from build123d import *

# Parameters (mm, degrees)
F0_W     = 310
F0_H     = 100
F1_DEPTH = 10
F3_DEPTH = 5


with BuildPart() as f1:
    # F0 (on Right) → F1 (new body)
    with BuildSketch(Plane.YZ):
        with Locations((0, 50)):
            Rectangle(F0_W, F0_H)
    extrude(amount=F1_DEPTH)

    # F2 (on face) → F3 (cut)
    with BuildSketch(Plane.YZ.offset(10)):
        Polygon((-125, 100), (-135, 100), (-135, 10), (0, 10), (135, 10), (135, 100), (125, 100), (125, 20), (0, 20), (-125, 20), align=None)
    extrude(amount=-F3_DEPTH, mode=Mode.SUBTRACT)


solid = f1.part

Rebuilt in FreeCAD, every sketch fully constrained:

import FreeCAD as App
import Part
import Sketcher
from FreeCAD import Vector
Q = App.Units.Quantity

doc = App.newDocument("Part")
body = doc.addObject("PartDesign::Body", "Body")

# Sketch on YZ plane
sketch1 = body.newObject("Sketcher::SketchObject", "Sketch")
sketch1.AttachmentSupport = (doc.getObject("YZ_Plane"), [""])
sketch1.MapMode = "FlatFace"
sketch1.addGeometry(Part.LineSegment(Vector(-155, 100, 0), Vector(-155, 0, 0)), False)
sketch1.addGeometry(Part.LineSegment(Vector(-155, 0, 0), Vector(155, 0, 0)), False)
sketch1.addGeometry(Part.LineSegment(Vector(155, 0, 0), Vector(155, 100, 0)), False)
sketch1.addGeometry(Part.LineSegment(Vector(155, 100, 0), Vector(-155, 100, 0)), False)
sketch1.addConstraint(Sketcher.Constraint("Coincident", 0, 2, 1, 1))
sketch1.addConstraint(Sketcher.Constraint("Coincident", 1, 2, 2, 1))
sketch1.addConstraint(Sketcher.Constraint("Coincident", 2, 2, 3, 1))
sketch1.addConstraint(Sketcher.Constraint("Coincident", 3, 2, 0, 1))
sketch1.addConstraint(Sketcher.Constraint("Vertical", 0))
sketch1.addConstraint(Sketcher.Constraint("Horizontal", 1))
sketch1.addConstraint(Sketcher.Constraint("Vertical", 2))
sketch1.addConstraint(Sketcher.Constraint("Horizontal", 3))
sketch1.addConstraint(Sketcher.Constraint("Symmetric", 0, 2, 1, 2, -1, 1))
sketch1.addConstraint(Sketcher.Constraint("DistanceX", 1, 1, 1, 2, Q("310 mm")))
sketch1.addConstraint(Sketcher.Constraint("DistanceY", 0, 2, 0, 1, Q("100 mm")))
pad1 = body.newObject("PartDesign::Pad", "Pad")
pad1.Profile = sketch1
pad1.Length = 10

# Sketch on YZ plane
sketch2 = body.newObject("Sketcher::SketchObject", "Sketch001")
sketch2.AttachmentSupport = (doc.getObject("YZ_Plane"), [""])
sketch2.MapMode = "FlatFace"
sketch2.AttachmentOffset = App.Placement(Vector(0, 0, 10), App.Rotation())
sketch2.addGeometry(Part.LineSegment(Vector(-125, 100, 0), Vector(-135, 100, 0)), False)
sketch2.addGeometry(Part.LineSegment(Vector(-135, 100, 0), Vector(-135, 10, 0)), False)
sketch2.addGeometry(Part.LineSegment(Vector(-135, 10, 0), Vector(135, 10, 0)), False)
sketch2.addGeometry(Part.LineSegment(Vector(135, 10, 0), Vector(135, 100, 0)), False)
sketch2.addGeometry(Part.LineSegment(Vector(135, 100, 0), Vector(125, 100, 0)), False)
sketch2.addGeometry(Part.LineSegment(Vector(125, 100, 0), Vector(125, 20, 0)), False)
sketch2.addGeometry(Part.LineSegment(Vector(125, 20, 0), Vector(-125, 20, 0)), False)
sketch2.addGeometry(Part.LineSegment(Vector(-125, 20, 0), Vector(-125, 100, 0)), False)
sketch2.addConstraint(Sketcher.Constraint("Coincident", 0, 2, 1, 1))
sketch2.addConstraint(Sketcher.Constraint("Coincident", 1, 2, 2, 1))
sketch2.addConstraint(Sketcher.Constraint("Coincident", 2, 2, 3, 1))
sketch2.addConstraint(Sketcher.Constraint("Coincident", 3, 2, 4, 1))
sketch2.addConstraint(Sketcher.Constraint("Coincident", 4, 2, 5, 1))
sketch2.addConstraint(Sketcher.Constraint("Coincident", 5, 2, 6, 1))
sketch2.addConstraint(Sketcher.Constraint("Coincident", 6, 2, 7, 1))
sketch2.addConstraint(Sketcher.Constraint("Coincident", 7, 2, 0, 1))
sketch2.addConstraint(Sketcher.Constraint("Horizontal", 0))
sketch2.addConstraint(Sketcher.Constraint("Vertical", 1))
sketch2.addConstraint(Sketcher.Constraint("Horizontal", 2))
sketch2.addConstraint(Sketcher.Constraint("Vertical", 3))
sketch2.addConstraint(Sketcher.Constraint("Horizontal", 4))
sketch2.addConstraint(Sketcher.Constraint("Vertical", 5))
sketch2.addConstraint(Sketcher.Constraint("Horizontal", 6))
sketch2.addConstraint(Sketcher.Constraint("Vertical", 7))
sketch2.addConstraint(Sketcher.Constraint("Symmetric", 0, 2, 3, 2, -2))
sketch2.addConstraint(Sketcher.Constraint("Equal", 0, 4))
sketch2.addConstraint(Sketcher.Constraint("DistanceX", 0, 2, 0, 1, Q("10 mm")))
sketch2.addConstraint(Sketcher.Constraint("DistanceX", 2, 1, 2, 2, Q("270 mm")))
sketch2.addConstraint(Sketcher.Constraint("DistanceY", 1, 2, 1, 1, Q("90 mm")))
sketch2.addConstraint(Sketcher.Constraint("DistanceY", 5, 2, 5, 1, Q("80 mm")))
sketch2.addConstraint(Sketcher.Constraint("DistanceY", -1, 1, 0, 2, Q("100 mm")))
pocket1 = body.newObject("PartDesign::Pocket", "Pocket")
pocket1.Profile = sketch2
pocket1.Length = 5

doc.recompute()
